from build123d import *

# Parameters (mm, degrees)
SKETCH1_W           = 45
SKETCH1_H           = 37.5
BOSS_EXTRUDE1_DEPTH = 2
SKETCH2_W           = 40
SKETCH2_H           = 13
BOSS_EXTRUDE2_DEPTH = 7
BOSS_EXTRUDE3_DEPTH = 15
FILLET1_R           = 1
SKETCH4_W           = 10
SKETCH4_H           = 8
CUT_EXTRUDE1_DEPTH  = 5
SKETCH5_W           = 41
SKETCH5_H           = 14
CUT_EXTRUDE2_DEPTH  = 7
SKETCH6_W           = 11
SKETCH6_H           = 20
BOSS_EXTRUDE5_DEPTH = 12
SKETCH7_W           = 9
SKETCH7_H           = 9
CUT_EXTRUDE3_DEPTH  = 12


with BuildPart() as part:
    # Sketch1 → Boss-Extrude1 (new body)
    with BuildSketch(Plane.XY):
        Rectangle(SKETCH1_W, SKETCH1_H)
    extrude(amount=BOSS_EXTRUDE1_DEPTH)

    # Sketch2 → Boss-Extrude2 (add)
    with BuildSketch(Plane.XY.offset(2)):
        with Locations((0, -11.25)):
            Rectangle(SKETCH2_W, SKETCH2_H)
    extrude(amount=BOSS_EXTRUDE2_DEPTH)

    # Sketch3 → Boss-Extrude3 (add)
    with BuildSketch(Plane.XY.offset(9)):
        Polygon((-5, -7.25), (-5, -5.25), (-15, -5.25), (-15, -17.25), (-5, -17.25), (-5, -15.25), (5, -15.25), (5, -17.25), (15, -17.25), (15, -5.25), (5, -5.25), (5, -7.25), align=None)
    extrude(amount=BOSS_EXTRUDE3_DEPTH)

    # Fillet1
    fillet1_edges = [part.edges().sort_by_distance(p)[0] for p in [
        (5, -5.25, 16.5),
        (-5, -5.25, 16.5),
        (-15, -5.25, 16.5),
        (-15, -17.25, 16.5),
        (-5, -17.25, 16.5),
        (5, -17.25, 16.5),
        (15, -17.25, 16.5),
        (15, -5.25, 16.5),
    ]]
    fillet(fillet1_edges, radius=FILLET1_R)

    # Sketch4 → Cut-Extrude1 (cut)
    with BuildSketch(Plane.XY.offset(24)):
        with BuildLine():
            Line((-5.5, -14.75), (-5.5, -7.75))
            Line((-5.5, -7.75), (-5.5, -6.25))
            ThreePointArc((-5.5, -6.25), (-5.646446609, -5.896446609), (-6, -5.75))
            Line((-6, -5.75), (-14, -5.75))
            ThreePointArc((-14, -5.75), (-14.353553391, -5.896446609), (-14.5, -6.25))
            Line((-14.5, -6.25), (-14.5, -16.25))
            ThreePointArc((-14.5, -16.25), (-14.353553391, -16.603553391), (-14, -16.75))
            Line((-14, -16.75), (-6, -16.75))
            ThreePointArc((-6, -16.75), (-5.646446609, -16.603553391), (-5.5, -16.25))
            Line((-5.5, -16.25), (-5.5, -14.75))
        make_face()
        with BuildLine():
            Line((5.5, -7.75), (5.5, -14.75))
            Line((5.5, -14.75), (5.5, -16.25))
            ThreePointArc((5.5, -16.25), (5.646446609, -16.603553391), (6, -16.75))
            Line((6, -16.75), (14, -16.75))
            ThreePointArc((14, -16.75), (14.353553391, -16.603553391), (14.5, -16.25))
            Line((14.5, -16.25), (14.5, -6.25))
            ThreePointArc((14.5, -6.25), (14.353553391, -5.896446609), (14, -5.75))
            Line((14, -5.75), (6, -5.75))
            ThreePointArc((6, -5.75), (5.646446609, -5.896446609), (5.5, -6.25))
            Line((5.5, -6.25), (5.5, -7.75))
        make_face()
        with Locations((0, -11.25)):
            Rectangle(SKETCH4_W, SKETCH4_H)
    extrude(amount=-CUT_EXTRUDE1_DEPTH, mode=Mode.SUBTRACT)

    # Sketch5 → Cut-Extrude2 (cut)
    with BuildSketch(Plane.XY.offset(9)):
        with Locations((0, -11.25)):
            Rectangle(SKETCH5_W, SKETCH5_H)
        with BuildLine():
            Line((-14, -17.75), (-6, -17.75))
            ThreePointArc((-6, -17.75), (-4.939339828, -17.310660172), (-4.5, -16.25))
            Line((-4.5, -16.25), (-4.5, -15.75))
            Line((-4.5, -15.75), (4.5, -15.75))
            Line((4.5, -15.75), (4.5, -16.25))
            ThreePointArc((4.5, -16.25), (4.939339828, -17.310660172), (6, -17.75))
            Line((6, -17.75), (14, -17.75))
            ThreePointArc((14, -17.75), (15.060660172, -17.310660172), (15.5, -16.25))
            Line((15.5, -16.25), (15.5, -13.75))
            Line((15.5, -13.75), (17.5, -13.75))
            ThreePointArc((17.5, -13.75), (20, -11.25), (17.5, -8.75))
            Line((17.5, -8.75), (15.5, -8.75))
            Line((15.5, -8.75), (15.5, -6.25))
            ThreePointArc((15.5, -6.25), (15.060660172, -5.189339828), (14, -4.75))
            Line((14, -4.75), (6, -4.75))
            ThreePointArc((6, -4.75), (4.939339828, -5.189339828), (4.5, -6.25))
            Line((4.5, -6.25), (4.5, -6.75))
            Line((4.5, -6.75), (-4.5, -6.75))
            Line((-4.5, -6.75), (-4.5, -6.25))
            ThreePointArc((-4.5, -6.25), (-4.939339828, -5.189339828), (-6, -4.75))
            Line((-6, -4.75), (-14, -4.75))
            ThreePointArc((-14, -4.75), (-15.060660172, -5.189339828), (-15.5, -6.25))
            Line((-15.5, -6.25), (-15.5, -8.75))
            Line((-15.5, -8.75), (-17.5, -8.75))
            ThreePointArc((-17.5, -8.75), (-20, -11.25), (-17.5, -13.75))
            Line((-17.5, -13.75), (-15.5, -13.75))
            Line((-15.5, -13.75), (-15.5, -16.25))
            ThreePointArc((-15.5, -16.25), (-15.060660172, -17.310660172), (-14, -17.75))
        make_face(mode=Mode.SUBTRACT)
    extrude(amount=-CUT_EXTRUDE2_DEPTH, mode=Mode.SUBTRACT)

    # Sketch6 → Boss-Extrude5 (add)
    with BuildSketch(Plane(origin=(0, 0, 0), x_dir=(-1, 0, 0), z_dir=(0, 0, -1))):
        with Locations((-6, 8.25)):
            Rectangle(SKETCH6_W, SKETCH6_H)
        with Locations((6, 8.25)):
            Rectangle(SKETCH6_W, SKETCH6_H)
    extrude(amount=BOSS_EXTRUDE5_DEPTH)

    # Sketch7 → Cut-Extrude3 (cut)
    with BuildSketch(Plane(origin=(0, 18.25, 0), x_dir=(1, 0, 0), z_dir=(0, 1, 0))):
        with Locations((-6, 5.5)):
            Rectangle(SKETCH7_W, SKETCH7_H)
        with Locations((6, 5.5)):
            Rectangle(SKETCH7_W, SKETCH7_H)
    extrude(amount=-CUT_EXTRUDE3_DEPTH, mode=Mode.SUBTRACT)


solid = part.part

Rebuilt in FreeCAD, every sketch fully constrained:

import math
import FreeCAD as App
import Part
import Sketcher

V = App.Vector


def edges_at(feature, points):
    """Names of the edges that pass closest to the given points."""
    edges = feature.Shape.Edges
    near = lambda p: min(range(len(edges)), key=lambda i: edges[i].distToShape(Part.Vertex(*p))[0])
    return sorted({f"Edge{near(p) + 1}" for p in points})

doc = App.newDocument("Part")
body = doc.addObject("PartDesign::Body", "Body")

# Sketch on XY plane
sketch1 = body.newObject("Sketcher::SketchObject", "Sketch")
sketch1.AttachmentSupport = (doc.getObject("XY_Plane"), [""])
sketch1.MapMode = "FlatFace"
sketch1.addGeometry(Part.LineSegment(V(-22.5, 18.75, 0), V(-22.5, -18.75, 0)), False)
sketch1.addGeometry(Part.LineSegment(V(-22.5, -18.75, 0), V(22.5, -18.75, 0)), False)
sketch1.addGeometry(Part.LineSegment(V(22.5, -18.75, 0), V(22.5, 18.75, 0)), False)
sketch1.addGeometry(Part.LineSegment(V(22.5, 18.75, 0), V(-22.5, 18.75, 0)), False)
sketch1.addConstraint(Sketcher.Constraint("Coincident", 0, 2, 1, 1))
sketch1.addConstraint(Sketcher.Constraint("Coincident", 1, 2, 2, 1))
sketch1.addConstraint(Sketcher.Constraint("Coincident", 2, 2, 3, 1))
sketch1.addConstraint(Sketcher.Constraint("Coincident", 3, 2, 0, 1))
sketch1.addConstraint(Sketcher.Constraint("Vertical", 0))
sketch1.addConstraint(Sketcher.Constraint("Horizontal", 1))
sketch1.addConstraint(Sketcher.Constraint("Vertical", 2))
sketch1.addConstraint(Sketcher.Constraint("Horizontal", 3))
sketch1.addConstraint(Sketcher.Constraint("Symmetric", 0, 2, 2, 2, -1, 1))
sketch1.addConstraint(Sketcher.Constraint("DistanceX", 1, 1, 1, 2, 45.0))
sketch1.addConstraint(Sketcher.Constraint("DistanceY", 0, 2, 0, 1, 37.5))
pad1 = body.newObject("PartDesign::Pad", "Pad")
pad1.Profile = sketch1
pad1.Length = 2

# Sketch on XY plane
sketch2 = body.newObject("Sketcher::SketchObject", "Sketch001")
sketch2.AttachmentSupport = (doc.getObject("XY_Plane"), [""])
sketch2.MapMode = "FlatFace"
sketch2.AttachmentOffset = App.Placement(V(0, 0, 2), App.Rotation())
sketch2.addGeometry(Part.LineSegment(V(-20, -4.75, 0), V(-20, -17.75, 0)), False)
sketch2.addGeometry(Part.LineSegment(V(-20, -17.75, 0), V(20, -17.75, 0)), False)
sketch2.addGeometry(Part.LineSegment(V(20, -17.75, 0), V(20, -4.75, 0)), False)
sketch2.addGeometry(Part.LineSegment(V(20, -4.75, 0), V(-20, -4.75, 0)), False)
sketch2.addConstraint(Sketcher.Constraint("Coincident", 0, 2, 1, 1))
sketch2.addConstraint(Sketcher.Constraint("Coincident", 1, 2, 2, 1))
sketch2.addConstraint(Sketcher.Constraint("Coincident", 2, 2, 3, 1))
sketch2.addConstraint(Sketcher.Constraint("Coincident", 3, 2, 0, 1))
sketch2.addConstraint(Sketcher.Constraint("Vertical", 0))
sketch2.addConstraint(Sketcher.Constraint("Horizontal", 1))
sketch2.addConstraint(Sketcher.Constraint("Vertical", 2))
sketch2.addConstraint(Sketcher.Constraint("Horizontal", 3))
sketch2.addConstraint(Sketcher.Constraint("DistanceX", 1, 1, 1, 2, 40.0))
sketch2.addConstraint(Sketcher.Constraint("DistanceY", 0, 2, 0, 1, 13.0))
sketch2.addConstraint(Sketcher.Constraint("DistanceX", 0, 2, -1, 1, 20.0))
sketch2.addConstraint(Sketcher.Constraint("DistanceY", 0, 2, -1, 1, 17.75))
pad2 = body.newObject("PartDesign::Pad", "Pad001")
pad2.Profile = sketch2
pad2.Length = 7

# Sketch on XY plane
sketch3 = body.newObject("Sketcher::SketchObject", "Sketch002")
sketch3.AttachmentSupport = (doc.getObject("XY_Plane"), [""])
sketch3.MapMode = "FlatFace"
sketch3.AttachmentOffset = App.Placement(V(0, 0, 9), App.Rotation())
sketch3.addGeometry(Part.LineSegment(V(-5, -7.25, 0), V(-5, -5.25, 0)), False)
sketch3.addGeometry(Part.LineSegment(V(-5, -5.25, 0), V(-15, -5.25, 0)), False)
sketch3.addGeometry(Part.LineSegment(V(-15, -5.25, 0), V(-15, -17.25, 0)), False)
sketch3.addGeometry(Part.LineSegment(V(-15, -17.25, 0), V(-5, -17.25, 0)), False)
sketch3.addGeometry(Part.LineSegment(V(-5, -17.25, 0), V(-5, -15.25, 0)), False)
sketch3.addGeometry(Part.LineSegment(V(-5, -15.25, 0), V(5, -15.25, 0)), False)
sketch3.addGeometry(Part.LineSegment(V(5, -15.25, 0), V(5, -17.25, 0)), False)
sketch3.addGeometry(Part.LineSegment(V(5, -17.25, 0), V(15, -17.25, 0)), False)
sketch3.addGeometry(Part.LineSegment(V(15, -17.25, 0), V(15, -5.25, 0)), False)
sketch3.addGeometry(Part.LineSegment(V(15, -5.25, 0), V(5, -5.25, 0)), False)
sketch3.addGeometry(Part.LineSegment(V(5, -5.25, 0), V(5, -7.25, 0)), False)
sketch3.addGeometry(Part.LineSegment(V(5, -7.25, 0), V(-5, -7.25, 0)), False)
sketch3.addConstraint(Sketcher.Constraint("Coincident", 0, 2, 1, 1))
sketch3.addConstraint(Sketcher.Constraint("Coincident", 1, 2, 2, 1))
sketch3.addConstraint(Sketcher.Constraint("Coincident", 2, 2, 3, 1))
sketch3.addConstraint(Sketcher.Constraint("Coincident", 3, 2, 4, 1))
sketch3.addConstraint(Sketcher.Constraint("Coincident", 4, 2, 5, 1))
sketch3.addConstraint(Sketcher.Constraint("Coincident", 5, 2, 6, 1))
sketch3.addConstraint(Sketcher.Constraint("Coincident", 6, 2, 7, 1))
sketch3.addConstraint(Sketcher.Constraint("Coincident", 7, 2, 8, 1))
sketch3.addConstraint(Sketcher.Constraint("Coincident", 8, 2, 9, 1))
sketch3.addConstraint(Sketcher.Constraint("Coincident", 9, 2, 10, 1))
sketch3.addConstraint(Sketcher.Constraint("Coincident", 10, 2, 11, 1))
sketch3.addConstraint(Sketcher.Constraint("Coincident", 11, 2, 0, 1))
sketch3.addConstraint(Sketcher.Constraint("Vertical", 0))
sketch3.addConstraint(Sketcher.Constraint("Horizontal", 1))
sketch3.addConstraint(Sketcher.Constraint("Vertical", 2))
sketch3.addConstraint(Sketcher.Constraint("Horizontal", 3))
sketch3.addConstraint(Sketcher.Constraint("Vertical", 4))
sketch3.addConstraint(Sketcher.Constraint("Horizontal", 5))
sketch3.addConstraint(Sketcher.Constraint("Vertical", 6))
sketch3.addConstraint(Sketcher.Constraint("Horizontal", 7))
sketch3.addConstraint(Sketcher.Constraint("Vertical", 8))
sketch3.addConstraint(Sketcher.Constraint("Horizontal", 9))
sketch3.addConstraint(Sketcher.Constraint("Vertical", 10))
sketch3.addConstraint(Sketcher.Constraint("Horizontal", 11))
sketch3.addConstraint(Sketcher.Constraint("Symmetric", 3, 2, 6, 2, -2))
sketch3.addConstraint(Sketcher.Constraint("Symmetric", 1, 2, 8, 2, -2))
sketch3.addConstraint(Sketcher.Constraint("Vertical", 0, 2, 3, 2))
sketch3.addConstraint(Sketcher.Constraint("Vertical", 6, 2, 9, 2))
sketch3.addConstraint(Sketcher.Constraint("Equal", 3, 5))
sketch3.addConstraint(Sketcher.Constraint("Equal", 0, 4))
sketch3.addConstraint(Sketcher.Constraint("DistanceX", 1, 2, 1, 1, 10.0))
sketch3.addConstraint(Sketcher.Constraint("DistanceY", 0, 1, 0, 2, 2.0))
sketch3.addConstraint(Sketcher.Constraint("DistanceY", 2, 2, 2, 1, 12.0))
sketch3.addConstraint(Sketcher.Constraint("DistanceY", 0, 2, -1, 1, 5.25))
pad3 = body.newObject("PartDesign::Pad", "Pad002")
pad3.Profile = sketch3
pad3.Length = 15
doc.recompute()

fillet = body.newObject("PartDesign::Fillet", "Fillet")
fillet.Base = (pad3, edges_at(pad3, [
    (5, -5.25, 16.5),
    (-5, -5.25, 16.5),
    (-15, -5.25, 16.5),
    (-15, -17.25, 16.5),
    (-5, -17.25, 16.5),
    (5, -17.25, 16.5),
    (15, -17.25, 16.5),
    (15, -5.25, 16.5),
]))
fillet.Radius = 1

# Sketch on XY plane
sketch4 = body.newObject("Sketcher::SketchObject", "Sketch003")
sketch4.AttachmentSupport = (doc.getObject("XY_Plane"), [""])
sketch4.MapMode = "FlatFace"
sketch4.AttachmentOffset = App.Placement(V(0, 0, 24), App.Rotation())
sketch4.addGeometry(Part.ArcOfCircle(Part.Circle(V(-6, -6.25, 0), V(0, 0, 1), 0.5), math.radians(0), math.radians(90)), False)
sketch4.addGeometry(Part.LineSegment(V(-6, -5.75, 0), V(-14, -5.75, 0)), False)
sketch4.addGeometry(Part.ArcOfCircle(Part.Circle(V(-14, -6.25, 0), V(0, 0, 1), 0.5), math.radians(90), math.radians(180)), False)
sketch4.addGeometry(Part.LineSegment(V(-14.5, -6.25, 0), V(-14.5, -16.25, 0)), False)
sketch4.addGeometry(Part.ArcOfCircle(Part.Circle(V(-14, -16.25, 0), V(0, 0, 1), 0.5), math.radians(180), math.radians(270)), False)
sketch4.addGeometry(Part.LineSegment(V(-14, -16.75, 0), V(-6, -16.75, 0)), False)
sketch4.addGeometry(Part.ArcOfCircle(Part.Circle(V(-6, -16.25, 0), V(0, 0, 1), 0.5), math.radians(-90), math.radians(0)), False)
sketch4.addGeometry(Part.LineSegment(V(-5.5, -16.25, 0), V(-5.5, -6.25, 0)), False)
sketch4.addGeometry(Part.ArcOfCircle(Part.Circle(V(6, -16.25, 0), V(0, 0, 1), 0.5), math.radians(180), math.radians(270)), False)
sketch4.addGeometry(Part.LineSegment(V(6, -16.75, 0), V(14, -16.75, 0)), False)
sketch4.addGeometry(Part.ArcOfCircle(Part.Circle(V(14, -16.25, 0), V(0, 0, 1), 0.5), math.radians(-90), math.radians(0)), False)
sketch4.addGeometry(Part.LineSegment(V(14.5, -16.25, 0), V(14.5, -6.25, 0)), False)
sketch4.addGeometry(Part.ArcOfCircle(Part.Circle(V(14, -6.25, 0), V(0, 0, 1), 0.5), math.radians(0), math.radians(90)), False)
sketch4.addGeometry(Part.LineSegment(V(14, -5.75, 0), V(6, -5.75, 0)), False)
sketch4.addGeometry(Part.ArcOfCircle(Part.Circle(V(6, -6.25, 0), V(0, 0, 1), 0.5), math.radians(90), math.radians(180)), False)
sketch4.addGeometry(Part.LineSegment(V(5.5, -6.25, 0), V(5.5, -16.25, 0)), False)
sketch4.addGeometry(Part.LineSegment(V(-5, -7.25, 0), V(-5, -15.25, 0)), False)
sketch4.addGeometry(Part.LineSegment(V(-5, -15.25, 0), V(5, -15.25, 0)), False)
sketch4.addGeometry(Part.LineSegment(V(5, -15.25, 0), V(5, -7.25, 0)), False)
sketch4.addGeometry(Part.LineSegment(V(5, -7.25, 0), V(-5, -7.25, 0)), False)
sketch4.addConstraint(Sketcher.Constraint("Tangent", 0, 2, 1, 1))
sketch4.addConstraint(Sketcher.Constraint("Tangent", 1, 2, 2, 1))
sketch4.addConstraint(Sketcher.Constraint("Tangent", 2, 2, 3, 1))
sketch4.addConstraint(Sketcher.Constraint("Tangent", 3, 2, 4, 1))
sketch4.addConstraint(Sketcher.Constraint("Tangent", 4, 2, 5, 1))
sketch4.addConstraint(Sketcher.Constraint("Tangent", 5, 2, 6, 1))
sketch4.addConstraint(Sketcher.Constraint("Tangent", 6, 2, 7, 1))
sketch4.addConstraint(Sketcher.Constraint("Tangent", 7, 2, 0, 1))
sketch4.addConstraint(Sketcher.Constraint("Tangent", 8, 2, 9, 1))
sketch4.addConstraint(Sketcher.Constraint("Tangent", 9, 2, 10, 1))
sketch4.addConstraint(Sketcher.Constraint("Tangent", 10, 2, 11, 1))
sketch4.addConstraint(Sketcher.Constraint("Tangent", 11, 2, 12, 1))
sketch4.addConstraint(Sketcher.Constraint("Tangent", 12, 2, 13, 1))
sketch4.addConstraint(Sketcher.Constraint("Tangent", 13, 2, 14, 1))
sketch4.addConstraint(Sketcher.Constraint("Tangent", 14, 2, 15, 1))
sketch4.addConstraint(Sketcher.Constraint("Tangent", 15, 2, 8, 1))
sketch4.addConstraint(Sketcher.Constraint("Coincident", 16, 2, 17, 1))
sketch4.addConstraint(Sketcher.Constraint("Coincident", 17, 2, 18, 1))
sketch4.addConstraint(Sketcher.Constraint("Coincident", 18, 2, 19, 1))
sketch4.addConstraint(Sketcher.Constraint("Coincident", 19, 2, 16, 1))
sketch4.addConstraint(Sketcher.Constraint("Horizontal", 1))
sketch4.addConstraint(Sketcher.Constraint("Vertical", 3))
sketch4.addConstraint(Sketcher.Constraint("Horizontal", 5))
sketch4.addConstraint(Sketcher.Constraint("Vertical", 7))
sketch4.addConstraint(Sketcher.Constraint("Horizontal", 9))
sketch4.addConstraint(Sketcher.Constraint("Vertical", 11))
sketch4.addConstraint(Sketcher.Constraint("Horizontal", 13))
sketch4.addConstraint(Sketcher.Constraint("Vertical", 15))
sketch4.addConstraint(Sketcher.Constraint("Vertical", 16))
sketch4.addConstraint(Sketcher.Constraint("Horizontal", 17))
sketch4.addConstraint(Sketcher.Constraint("Vertical", 18))
sketch4.addConstraint(Sketcher.Constraint("Horizontal", 19))
sketch4.addConstraint(Sketcher.Constraint("Equal", 0, 2))
sketch4.addConstraint(Sketcher.Constraint("Equal", 2, 4))
sketch4.addConstraint(Sketcher.Constraint("Equal", 4, 6))
sketch4.addConstraint(Sketcher.Constraint("Equal", 6, 8))
sketch4.addConstraint(Sketcher.Constraint("Equal", 8, 10))
sketch4.addConstraint(Sketcher.Constraint("Equal", 10, 12))
sketch4.addConstraint(Sketcher.Constraint("Equal", 12, 14))
sketch4.addConstraint(Sketcher.Constraint("Symmetric", 6, 3, 8, 3, -2))
sketch4.addConstraint(Sketcher.Constraint("Symmetric", 2, 3, 12, 3, -2))
sketch4.addConstraint(Sketcher.Constraint("Equal", 19, 3))
sketch4.addConstraint(Sketcher.Constraint("Equal", 13, 16))
sketch4.addConstraint(Sketcher.Constraint("Radius", 0, 0.5))
sketch4.addConstraint(Sketcher.Constraint("DistanceX", 1, 2, 1, 1, 8.0))
sketch4.addConstraint(Sketcher.Constraint("DistanceX", 17, 1, 17, 2, 10.0))
sketch4.addConstraint(Sketcher.Constraint("DistanceX", 0, 3, -1, 1, 6.0))
sketch4.addConstraint(Sketcher.Constraint("DistanceX", 16, 2, -1, 1, 5.0))
sketch4.addConstraint(Sketcher.Constraint("DistanceY", 6, 2, 16, 2, 1.0))
sketch4.addConstraint(Sketcher.Constraint("DistanceY", 0, 3, -1, 1, 6.25))
pocket1 = body.newObject("PartDesign::Pocket", "Pocket")
pocket1.Profile = sketch4
pocket1.Length = 5

# Sketch on XY plane
sketch5 = body.newObject("Sketcher::SketchObject", "Sketch004")
sketch5.AttachmentSupport = (doc.getObject("XY_Plane"), [""])
sketch5.MapMode = "FlatFace"
sketch5.AttachmentOffset = App.Placement(V(0, 0, 9), App.Rotation())
sketch5.addGeometry(Part.LineSegment(V(-20.5, -4.25, 0), V(-20.5, -18.25, 0)), False)
sketch5.addGeometry(Part.LineSegment(V(-20.5, -18.25, 0), V(20.5, -18.25, 0)), False)
sketch5.addGeometry(Part.LineSegment(V(20.5, -18.25, 0), V(20.5, -4.25, 0)), False)
sketch5.addGeometry(Part.LineSegment(V(20.5, -4.25, 0), V(-20.5, -4.25, 0)), False)
sketch5.addGeometry(Part.LineSegment(V(-6, -17.75, 0), V(-14, -17.75, 0)), False)
sketch5.addGeometry(Part.ArcOfCircle(Part.Circle(V(-14, -16.25, 0), V(0, 0, 1), 1.5), math.radians(180), math.radians(270)), False)
sketch5.addGeometry(Part.LineSegment(V(-15.5, -16.25, 0), V(-15.5, -13.75, 0)), False)
sketch5.addGeometry(Part.LineSegment(V(-15.5, -13.75, 0), V(-17.5, -13.75, 0)), False)
sketch5.addGeometry(Part.ArcOfCircle(Part.Circle(V(-17.5, -11.25, 0), V(0, 0, 1), 2.5), math.radians(90), math.radians(270)), False)
sketch5.addGeometry(Part.LineSegment(V(-17.5, -8.75, 0), V(-15.5, -8.75, 0)), False)
sketch5.addGeometry(Part.LineSegment(V(-15.5, -8.75, 0), V(-15.5, -6.25, 0)), False)
sketch5.addGeometry(Part.ArcOfCircle(Part.Circle(V(-14, -6.25, 0), V(0, 0, 1), 1.5), math.radians(90), math.radians(180)), False)
sketch5.addGeometry(Part.LineSegment(V(-14, -4.75, 0), V(-6, -4.75, 0)), False)
sketch5.addGeometry(Part.ArcOfCircle(Part.Circle(V(-6, -6.25, 0), V(0, 0, 1), 1.5), math.radians(0), math.radians(90)), False)
sketch5.addGeometry(Part.LineSegment(V(-4.5, -6.25, 0), V(-4.5, -6.75, 0)), False)
sketch5.addGeometry(Part.LineSegment(V(-4.5, -6.75, 0), V(4.5, -6.75, 0)), False)
sketch5.addGeometry(Part.LineSegment(V(4.5, -6.75, 0), V(4.5, -6.25, 0)), False)
sketch5.addGeometry(Part.ArcOfCircle(Part.Circle(V(6, -6.25, 0), V(0, 0, 1), 1.5), math.radians(90), math.radians(180)), False)
sketch5.addGeometry(Part.LineSegment(V(6, -4.75, 0), V(14, -4.75, 0)), False)
sketch5.addGeometry(Part.ArcOfCircle(Part.Circle(V(14, -6.25, 0), V(0, 0, 1), 1.5), math.radians(0), math.radians(90)), False)
sketch5.addGeometry(Part.LineSegment(V(15.5, -6.25, 0), V(15.5, -8.75, 0)), False)
sketch5.addGeometry(Part.LineSegment(V(15.5, -8.75, 0), V(17.5, -8.75, 0)), False)
sketch5.addGeometry(Part.ArcOfCircle(Part.Circle(V(17.5, -11.25, 0), V(0, 0, 1), 2.5), math.radians(-90), math.radians(90)), False)
sketch5.addGeometry(Part.LineSegment(V(17.5, -13.75, 0), V(15.5, -13.75, 0)), False)
sketch5.addGeometry(Part.LineSegment(V(15.5, -13.75, 0), V(15.5, -16.25, 0)), False)
sketch5.addGeometry(Part.ArcOfCircle(Part.Circle(V(14, -16.25, 0), V(0, 0, 1), 1.5), math.radians(-90), math.radians(0)), False)
sketch5.addGeometry(Part.LineSegment(V(14, -17.75, 0), V(6, -17.75, 0)), False)
sketch5.addGeometry(Part.ArcOfCircle(Part.Circle(V(6, -16.25, 0), V(0, 0, 1), 1.5), math.radians(180), math.radians(270)), False)
sketch5.addGeometry(Part.LineSegment(V(4.5, -16.25, 0), V(4.5, -15.75, 0)), False)
sketch5.addGeometry(Part.LineSegment(V(4.5, -15.75, 0), V(-4.5, -15.75, 0)), False)
sketch5.addGeometry(Part.LineSegment(V(-4.5, -15.75, 0), V(-4.5, -16.25, 0)), False)
sketch5.addGeometry(Part.ArcOfCircle(Part.Circle(V(-6, -16.25, 0), V(0, 0, 1), 1.5), math.radians(-90), math.radians(0)), False)
sketch5.addConstraint(Sketcher.Constraint("Coincident", 0, 2, 1, 1))
sketch5.addConstraint(Sketcher.Constraint("Coincident", 1, 2, 2, 1))
sketch5.addConstraint(Sketcher.Constraint("Coincident", 2, 2, 3, 1))
sketch5.addConstraint(Sketcher.Constraint("Coincident", 3, 2, 0, 1))
sketch5.addConstraint(Sketcher.Constraint("Tangent", 4, 2, 5, 2))
sketch5.addConstraint(Sketcher.Constraint("Tangent", 5, 1, 6, 1))
sketch5.addConstraint(Sketcher.Constraint("Coincident", 6, 2, 7, 1))
sketch5.addConstraint(Sketcher.Constraint("Tangent", 7, 2, 8, 2))
sketch5.addConstraint(Sketcher.Constraint("Tangent", 8, 1, 9, 1))
sketch5.addConstraint(Sketcher.Constraint("Coincident", 9, 2, 10, 1))
sketch5.addConstraint(Sketcher.Constraint("Tangent", 10, 2, 11, 2))
sketch5.addConstraint(Sketcher.Constraint("Tangent", 11, 1, 12, 1))
sketch5.addConstraint(Sketcher.Constraint("Tangent", 12, 2, 13, 2))
sketch5.addConstraint(Sketcher.Constraint("Tangent", 13, 1, 14, 1))
sketch5.addConstraint(Sketcher.Constraint("Coincident", 14, 2, 15, 1))
sketch5.addConstraint(Sketcher.Constraint("Coincident", 15, 2, 16, 1))
sketch5.addConstraint(Sketcher.Constraint("Tangent", 16, 2, 17, 2))
sketch5.addConstraint(Sketcher.Constraint("Tangent", 17, 1, 18, 1))
sketch5.addConstraint(Sketcher.Constraint("Tangent", 18, 2, 19, 2))
sketch5.addConstraint(Sketcher.Constraint("Tangent", 19, 1, 20, 1))
sketch5.addConstraint(Sketcher.Constraint("Coincident", 20, 2, 21, 1))
sketch5.addConstraint(Sketcher.Constraint("Tangent", 21, 2, 22, 2))
sketch5.addConstraint(Sketcher.Constraint("Tangent", 22, 1, 23, 1))
sketch5.addConstraint(Sketcher.Constraint("Coincident", 23, 2, 24, 1))
sketch5.addConstraint(Sketcher.Constraint("Tangent", 24, 2, 25, 2))
sketch5.addConstraint(Sketcher.Constraint("Tangent", 25, 1, 26, 1))
sketch5.addConstraint(Sketcher.Constraint("Tangent", 26, 2, 27, 2))
sketch5.addConstraint(Sketcher.Constraint("Tangent", 27, 1, 28, 1))
sketch5.addConstraint(Sketcher.Constraint("Coincident", 28, 2, 29, 1))
sketch5.addConstraint(Sketcher.Constraint("Coincident", 29, 2, 30, 1))
sketch5.addConstraint(Sketcher.Constraint("Tangent", 30, 2, 31, 2))
sketch5.addConstraint(Sketcher.Constraint("Tangent", 31, 1, 4, 1))
sketch5.addConstraint(Sketcher.Constraint("Vertical", 0))
sketch5.addConstraint(Sketcher.Constraint("Horizontal", 1))
sketch5.addConstraint(Sketcher.Constraint("Vertical", 2))
sketch5.addConstraint(Sketcher.Constraint("Horizontal", 3))
sketch5.addConstraint(Sketcher.Constraint("Horizontal", 4))
sketch5.addConstraint(Sketcher.Constraint("Vertical", 6))
sketch5.addConstraint(Sketcher.Constraint("Horizontal", 7))
sketch5.addConstraint(Sketcher.Constraint("Horizontal", 9))
sketch5.addConstraint(Sketcher.Constraint("Vertical", 10))
sketch5.addConstraint(Sketcher.Constraint("Horizontal", 12))
sketch5.addConstraint(Sketcher.Constraint("Vertical", 14))
sketch5.addConstraint(Sketcher.Constraint("Horizontal", 15))
sketch5.addConstraint(Sketcher.Constraint("Vertical", 16))
sketch5.addConstraint(Sketcher.Constraint("Horizontal", 18))
sketch5.addConstraint(Sketcher.Constraint("Vertical", 20))
sketch5.addConstraint(Sketcher.Constraint("Horizontal", 21))
sketch5.addConstraint(Sketcher.Constraint("Horizontal", 23))
sketch5.addConstraint(Sketcher.Constraint("Vertical", 24))
sketch5.addConstraint(Sketcher.Constraint("Horizontal", 26))
sketch5.addConstraint(Sketcher.Constraint("Vertical", 28))
sketch5.addConstraint(Sketcher.Constraint("Horizontal", 29))
sketch5.addConstraint(Sketcher.Constraint("Vertical", 30))
sketch5.addConstraint(Sketcher.Constraint("Equal", 5, 11))
sketch5.addConstraint(Sketcher.Constraint("Equal", 11, 13))
sketch5.addConstraint(Sketcher.Constraint("Equal", 13, 17))
sketch5.addConstraint(Sketcher.Constraint("Equal", 17, 19))
sketch5.addConstraint(Sketcher.Constraint("Equal", 8, 22))
sketch5.addConstraint(Sketcher.Constraint("Equal", 19, 25))
sketch5.addConstraint(Sketcher.Constraint("Equal", 25, 27))
sketch5.addConstraint(Sketcher.Constraint("Equal", 27, 31))
sketch5.addConstraint(Sketcher.Constraint("Symmetric", 13, 3, 17, 3, -2))
sketch5.addConstraint(Sketcher.Constraint("Symmetric", 8, 3, 22, 3, -2))
sketch5.addConstraint(Sketcher.Constraint("Symmetric", 5, 3, 25, 3, -2))
sketch5.addConstraint(Sketcher.Constraint("Vertical", 5, 3, 11, 3))
sketch5.addConstraint(Sketcher.Constraint("Vertical", 19, 3, 25, 3))
sketch5.addConstraint(Sketcher.Constraint("Vertical", 17, 3, 27, 3))
sketch5.addConstraint(Sketcher.Constraint("Vertical", 13, 3, 31, 3))
sketch5.addConstraint(Sketcher.Constraint("Equal", 6, 10))
sketch5.addConstraint(Sketcher.Constraint("Equal", 16, 28))
sketch5.addConstraint(Sketcher.Constraint("Radius", 5, 1.5))
sketch5.addConstraint(Sketcher.Constraint("Radius", 8, 2.5))
sketch5.addConstraint(Sketcher.Constraint("DistanceX", 1, 1, 1, 2, 41.0))
sketch5.addConstraint(Sketcher.Constraint("DistanceX", 4, 2, 4, 1, 8.0))
sketch5.addConstraint(Sketcher.Constraint("DistanceX", 7, 2, 7, 1, 2.0))
sketch5.addConstraint(Sketcher.Constraint("DistanceX", 15, 1, 15, 2, 9.0))
sketch5.addConstraint(Sketcher.Constraint("DistanceY", 0, 2, 0, 1, 14.0))
sketch5.addConstraint(Sketcher.Constraint("DistanceY", 6, 1, 6, 2, 2.5))
sketch5.addConstraint(Sketcher.Constraint("DistanceY", 14, 2, 14, 1, 0.5))
sketch5.addConstraint(Sketcher.Constraint("DistanceY", 0, 2, 5, 3, 2.0))
sketch5.addConstraint(Sketcher.Constraint("DistanceX", 0, 2, 8, 3, 3.0))
sketch5.addConstraint(Sketcher.Constraint("DistanceY", 5, 3, -1, 1, 16.25))
pocket2 = body.newObject("PartDesign::Pocket", "Pocket001")
pocket2.Profile = sketch5
pocket2.Length = 7

# Sketch on XY plane
sketch6 = body.newObject("Sketcher::SketchObject", "Sketch005")
sketch6.AttachmentSupport = (doc.getObject("XY_Plane"), [""])
sketch6.MapMode = "FlatFace"
sketch6.addGeometry(Part.LineSegment(V(11.5, 18.25, 0), V(11.5, -1.75, 0)), False)
sketch6.addGeometry(Part.LineSegment(V(11.5, -1.75, 0), V(0.5, -1.75, 0)), False)
sketch6.addGeometry(Part.LineSegment(V(0.5, -1.75, 0), V(0.5, 18.25, 0)), False)
sketch6.addGeometry(Part.LineSegment(V(0.5, 18.25, 0), V(11.5, 18.25, 0)), False)
sketch6.addGeometry(Part.LineSegment(V(-0.5, 18.25, 0), V(-0.5, -1.75, 0)), False)
sketch6.addGeometry(Part.LineSegment(V(-0.5, -1.75, 0), V(-11.5, -1.75, 0)), False)
sketch6.addGeometry(Part.LineSegment(V(-11.5, -1.75, 0), V(-11.5, 18.25, 0)), False)
sketch6.addGeometry(Part.LineSegment(V(-11.5, 18.25, 0), V(-0.5, 18.25, 0)), False)
sketch6.addConstraint(Sketcher.Constraint("Coincident", 0, 2, 1, 1))
sketch6.addConstraint(Sketcher.Constraint("Coincident", 1, 2, 2, 1))
sketch6.addConstraint(Sketcher.Constraint("Coincident", 2, 2, 3, 1))
sketch6.addConstraint(Sketcher.Constraint("Coincident", 3, 2, 0, 1))
sketch6.addConstraint(Sketcher.Constraint("Coincident", 4, 2, 5, 1))
sketch6.addConstraint(Sketcher.Constraint("Coincident", 5, 2, 6, 1))
sketch6.addConstraint(Sketcher.Constraint("Coincident", 6, 2, 7, 1))
sketch6.addConstraint(Sketcher.Constraint("Coincident", 7, 2, 4, 1))
sketch6.addConstraint(Sketcher.Constraint("Vertical", 0))
sketch6.addConstraint(Sketcher.Constraint("Horizontal", 1))
sketch6.addConstraint(Sketcher.Constraint("Vertical", 2))
sketch6.addConstraint(Sketcher.Constraint("Horizontal", 3))
sketch6.addConstraint(Sketcher.Constraint("Vertical", 4))
sketch6.addConstraint(Sketcher.Constraint("Horizontal", 5))
sketch6.addConstraint(Sketcher.Constraint("Vertical", 6))
sketch6.addConstraint(Sketcher.Constraint("Horizontal", 7))
sketch6.addConstraint(Sketcher.Constraint("Symmetric", 1, 2, 4, 2, -2))
sketch6.addConstraint(Sketcher.Constraint("Symmetric", 3, 2, 6, 2, -2))
sketch6.addConstraint(Sketcher.Constraint("DistanceX", 1, 2, 1, 1, 11.0))
sketch6.addConstraint(Sketcher.Constraint("DistanceY", 0, 2, 0, 1, 20.0))
sketch6.addConstraint(Sketcher.Constraint("DistanceX", 4, 2, 1, 2, 1.0))
sketch6.addConstraint(Sketcher.Constraint("DistanceY", 0, 2, -1, 1, 1.75))
pad4 = body.newObject("PartDesign::Pad", "Pad003")
pad4.Profile = sketch6
pad4.Length = 12
pad4.Reversed = True

# Sketch on XZ plane
sketch7 = body.newObject("Sketcher::SketchObject", "Sketch006")
sketch7.AttachmentSupport = (doc.getObject("XZ_Plane"), [""])
sketch7.MapMode = "FlatFace"
sketch7.AttachmentOffset = App.Placement(V(0, 0, -18.25), App.Rotation())
sketch7.addGeometry(Part.LineSegment(V(-10.5, -10, 0), V(-10.5, -1, 0)), False)
sketch7.addGeometry(Part.LineSegment(V(-10.5, -1, 0), V(-1.5, -1, 0)), False)
sketch7.addGeometry(Part.LineSegment(V(-1.5, -1, 0), V(-1.5, -10, 0)), False)
sketch7.addGeometry(Part.LineSegment(V(-1.5, -10, 0), V(-10.5, -10, 0)), False)
sketch7.addGeometry(Part.LineSegment(V(1.5, -10, 0), V(1.5, -1, 0)), False)
sketch7.addGeometry(Part.LineSegment(V(1.5, -1, 0), V(10.5, -1, 0)), False)
sketch7.addGeometry(Part.LineSegment(V(10.5, -1, 0), V(10.5, -10, 0)), False)
sketch7.addGeometry(Part.LineSegment(V(10.5, -10, 0), V(1.5, -10, 0)), False)
sketch7.addConstraint(Sketcher.Constraint("Coincident", 0, 2, 1, 1))
sketch7.addConstraint(Sketcher.Constraint("Coincident", 1, 2, 2, 1))
sketch7.addConstraint(Sketcher.Constraint("Coincident", 2, 2, 3, 1))
sketch7.addConstraint(Sketcher.Constraint("Coincident", 3, 2, 0, 1))
sketch7.addConstraint(Sketcher.Constraint("Coincident", 4, 2, 5, 1))
sketch7.addConstraint(Sketcher.Constraint("Coincident", 5, 2, 6, 1))
sketch7.addConstraint(Sketcher.Constraint("Coincident", 6, 2, 7, 1))
sketch7.addConstraint(Sketcher.Constraint("Coincident", 7, 2, 4, 1))
sketch7.addConstraint(Sketcher.Constraint("Vertical", 0))
sketch7.addConstraint(Sketcher.Constraint("Horizontal", 1))
sketch7.addConstraint(Sketcher.Constraint("Vertical", 2))
sketch7.addConstraint(Sketcher.Constraint("Horizontal", 3))
sketch7.addConstraint(Sketcher.Constraint("Vertical", 4))
sketch7.addConstraint(Sketcher.Constraint("Horizontal", 5))
sketch7.addConstraint(Sketcher.Constraint("Vertical", 6))
sketch7.addConstraint(Sketcher.Constraint("Horizontal", 7))
sketch7.addConstraint(Sketcher.Constraint("Symmetric", 1, 2, 4, 2, -2))
sketch7.addConstraint(Sketcher.Constraint("Symmetric", 3, 2, 6, 2, -2))
sketch7.addConstraint(Sketcher.Constraint("Equal", 7, 0))
sketch7.addConstraint(Sketcher.Constraint("DistanceX", 1, 1, 1, 2, 9.0))
sketch7.addConstraint(Sketcher.Constraint("DistanceY", 0, 2, -1, 1, 1.0))
sketch7.addConstraint(Sketcher.Constraint("DistanceX", 1, 2, 4, 2, 3.0))
pocket3 = body.newObject("PartDesign::Pocket", "Pocket002")
pocket3.Profile = sketch7
pocket3.Length = 12
pocket3.Reversed = True

doc.recompute()
